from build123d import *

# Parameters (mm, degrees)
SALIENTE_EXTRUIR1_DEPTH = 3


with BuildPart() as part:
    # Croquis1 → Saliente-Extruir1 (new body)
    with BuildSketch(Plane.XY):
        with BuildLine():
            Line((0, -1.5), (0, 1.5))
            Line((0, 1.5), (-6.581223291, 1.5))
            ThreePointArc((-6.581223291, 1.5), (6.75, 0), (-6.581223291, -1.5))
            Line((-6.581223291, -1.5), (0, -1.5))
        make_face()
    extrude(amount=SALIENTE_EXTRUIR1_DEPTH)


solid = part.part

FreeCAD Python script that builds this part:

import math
import FreeCAD as App
import Part
import Sketcher

V = App.Vector
Q = App.Units.Quantity

doc = App.newDocument("Part")
params = doc.addObject("Spreadsheet::Sheet", "Params")
for row, (alias, value) in enumerate([
    ("sketch1_height", "3 mm"),
    ("sketch1_radius", "6.75 mm"),
    ("pad1_length", "3 mm"),
], start=1):
    params.set(f"A{row}", alias)
    params.set(f"B{row}", "=" + value)
    params.setAlias(f"B{row}", alias)

body = doc.addObject("PartDesign::Body", "Body")

# Sketch on XY plane
sketch1 = body.newObject("Sketcher::SketchObject", "Sketch")
sketch1.AttachmentSupport = (doc.getObject("XY_Plane"), [""])
sketch1.MapMode = "FlatFace"
sketch1.addGeometry([
    Part.LineSegment(V(0, 1.5, 0), V(0, -1.5, 0)),
    Part.LineSegment(V(0, -1.5, 0), V(-6.6, -1.5, 0)),
    Part.ArcOfCircle(Part.Circle(V(0, 0, 0), V(0, 0, 1), 6.8), math.radians(-167), math.radians(167)),
    Part.LineSegment(V(-6.6, 1.5, 0), V(0, 1.5, 0)),
], False)
sketch1.addConstraint([
    Sketcher.Constraint("Coincident", 0, 2, 1, 1),
    Sketcher.Constraint("Coincident", 1, 2, 2, 1),
    Sketcher.Constraint("Coincident", 2, 2, 3, 1),
    Sketcher.Constraint("Coincident", 3, 2, 0, 1),
    Sketcher.Constraint("Vertical", 0),
    Sketcher.Constraint("Horizontal", 1),
    Sketcher.Constraint("Horizontal", 3),
    Sketcher.Constraint("Coincident", 2, 3, -1, 1),
    Sketcher.Constraint("Symmetric", 0, 2, 3, 2, -1, 1),
    Sketcher.Constraint("DistanceY", 0, 2, 0, 1, Q("3 mm")),
    Sketcher.Constraint("Radius", 2, Q("6.75 mm")),
])
sketch1.setExpression("Constraints[9]", "Params.sketch1_height")
sketch1.setExpression("Constraints[10]", "Params.sketch1_radius")
pad1 = body.newObject("PartDesign::Pad", "Pad")
pad1.Profile = sketch1
pad1.setExpression("Length", "Params.pad1_length")

doc.recompute()
